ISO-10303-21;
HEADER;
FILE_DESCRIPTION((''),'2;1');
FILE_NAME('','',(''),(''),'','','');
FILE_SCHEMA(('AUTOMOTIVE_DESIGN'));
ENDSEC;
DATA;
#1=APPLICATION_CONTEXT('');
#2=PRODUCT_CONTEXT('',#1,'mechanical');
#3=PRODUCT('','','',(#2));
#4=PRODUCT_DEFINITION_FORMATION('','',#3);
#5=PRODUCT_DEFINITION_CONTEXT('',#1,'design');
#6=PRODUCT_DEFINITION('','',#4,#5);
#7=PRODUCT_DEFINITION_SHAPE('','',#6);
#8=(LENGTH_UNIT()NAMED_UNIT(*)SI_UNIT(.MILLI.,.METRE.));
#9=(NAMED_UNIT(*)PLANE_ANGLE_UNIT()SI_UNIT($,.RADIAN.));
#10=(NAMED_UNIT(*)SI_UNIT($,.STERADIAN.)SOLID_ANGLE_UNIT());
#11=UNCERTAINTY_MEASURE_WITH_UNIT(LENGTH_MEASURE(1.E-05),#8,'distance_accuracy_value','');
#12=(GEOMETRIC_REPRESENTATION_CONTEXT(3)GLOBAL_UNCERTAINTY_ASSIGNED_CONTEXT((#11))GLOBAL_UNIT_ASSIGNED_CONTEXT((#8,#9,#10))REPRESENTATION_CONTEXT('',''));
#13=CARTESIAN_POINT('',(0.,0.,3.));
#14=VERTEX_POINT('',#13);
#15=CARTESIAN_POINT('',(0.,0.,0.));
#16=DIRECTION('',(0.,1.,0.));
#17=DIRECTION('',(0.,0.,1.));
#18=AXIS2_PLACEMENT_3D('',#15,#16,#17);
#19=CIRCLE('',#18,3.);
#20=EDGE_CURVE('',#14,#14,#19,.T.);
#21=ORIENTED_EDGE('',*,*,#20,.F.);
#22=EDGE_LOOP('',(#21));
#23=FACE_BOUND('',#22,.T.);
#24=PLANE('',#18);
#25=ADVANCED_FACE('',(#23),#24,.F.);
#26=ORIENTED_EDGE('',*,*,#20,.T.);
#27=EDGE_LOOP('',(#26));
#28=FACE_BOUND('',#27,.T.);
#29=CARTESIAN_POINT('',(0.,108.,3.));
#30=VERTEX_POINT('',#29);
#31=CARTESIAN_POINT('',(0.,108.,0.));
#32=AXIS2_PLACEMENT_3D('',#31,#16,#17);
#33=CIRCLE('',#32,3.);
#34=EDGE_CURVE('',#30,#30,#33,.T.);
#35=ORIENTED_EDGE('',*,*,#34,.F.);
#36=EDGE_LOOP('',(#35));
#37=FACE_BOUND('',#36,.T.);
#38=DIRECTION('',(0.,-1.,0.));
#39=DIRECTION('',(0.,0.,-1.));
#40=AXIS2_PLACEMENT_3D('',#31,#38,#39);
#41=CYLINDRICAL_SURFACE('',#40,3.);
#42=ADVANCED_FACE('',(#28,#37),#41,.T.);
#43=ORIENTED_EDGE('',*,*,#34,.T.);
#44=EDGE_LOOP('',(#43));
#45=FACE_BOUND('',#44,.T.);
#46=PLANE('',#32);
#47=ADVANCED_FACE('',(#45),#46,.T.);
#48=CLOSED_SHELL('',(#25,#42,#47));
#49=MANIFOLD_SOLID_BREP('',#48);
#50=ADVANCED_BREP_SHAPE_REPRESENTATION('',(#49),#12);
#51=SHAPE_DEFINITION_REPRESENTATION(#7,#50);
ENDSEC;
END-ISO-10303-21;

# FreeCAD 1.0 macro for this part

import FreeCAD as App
import Part
import Sketcher
Q = App.Units.Quantity

doc = App.newDocument("Part")
body = doc.addObject("PartDesign::Body", "Body")

# Sketch on XZ plane
sketch1 = body.newObject("Sketcher::SketchObject", "Sketch")
sketch1.AttachmentSupport = (doc.getObject("XZ_Plane"), [""])
sketch1.MapMode = "FlatFace"
sketch1.addGeometry(Part.Circle(App.Vector(0, 0, 0), App.Vector(0, 0, 1), 3), False)
sketch1.addConstraint([
    Sketcher.Constraint("Coincident", 0, 3, -1, 1),
    Sketcher.Constraint("Diameter", 0, Q("6 mm")),
])
pad1 = body.newObject("PartDesign::Pad", "Pad")
pad1.Profile = sketch1
pad1.Length = 108
pad1.Reversed = True

doc.recompute()
